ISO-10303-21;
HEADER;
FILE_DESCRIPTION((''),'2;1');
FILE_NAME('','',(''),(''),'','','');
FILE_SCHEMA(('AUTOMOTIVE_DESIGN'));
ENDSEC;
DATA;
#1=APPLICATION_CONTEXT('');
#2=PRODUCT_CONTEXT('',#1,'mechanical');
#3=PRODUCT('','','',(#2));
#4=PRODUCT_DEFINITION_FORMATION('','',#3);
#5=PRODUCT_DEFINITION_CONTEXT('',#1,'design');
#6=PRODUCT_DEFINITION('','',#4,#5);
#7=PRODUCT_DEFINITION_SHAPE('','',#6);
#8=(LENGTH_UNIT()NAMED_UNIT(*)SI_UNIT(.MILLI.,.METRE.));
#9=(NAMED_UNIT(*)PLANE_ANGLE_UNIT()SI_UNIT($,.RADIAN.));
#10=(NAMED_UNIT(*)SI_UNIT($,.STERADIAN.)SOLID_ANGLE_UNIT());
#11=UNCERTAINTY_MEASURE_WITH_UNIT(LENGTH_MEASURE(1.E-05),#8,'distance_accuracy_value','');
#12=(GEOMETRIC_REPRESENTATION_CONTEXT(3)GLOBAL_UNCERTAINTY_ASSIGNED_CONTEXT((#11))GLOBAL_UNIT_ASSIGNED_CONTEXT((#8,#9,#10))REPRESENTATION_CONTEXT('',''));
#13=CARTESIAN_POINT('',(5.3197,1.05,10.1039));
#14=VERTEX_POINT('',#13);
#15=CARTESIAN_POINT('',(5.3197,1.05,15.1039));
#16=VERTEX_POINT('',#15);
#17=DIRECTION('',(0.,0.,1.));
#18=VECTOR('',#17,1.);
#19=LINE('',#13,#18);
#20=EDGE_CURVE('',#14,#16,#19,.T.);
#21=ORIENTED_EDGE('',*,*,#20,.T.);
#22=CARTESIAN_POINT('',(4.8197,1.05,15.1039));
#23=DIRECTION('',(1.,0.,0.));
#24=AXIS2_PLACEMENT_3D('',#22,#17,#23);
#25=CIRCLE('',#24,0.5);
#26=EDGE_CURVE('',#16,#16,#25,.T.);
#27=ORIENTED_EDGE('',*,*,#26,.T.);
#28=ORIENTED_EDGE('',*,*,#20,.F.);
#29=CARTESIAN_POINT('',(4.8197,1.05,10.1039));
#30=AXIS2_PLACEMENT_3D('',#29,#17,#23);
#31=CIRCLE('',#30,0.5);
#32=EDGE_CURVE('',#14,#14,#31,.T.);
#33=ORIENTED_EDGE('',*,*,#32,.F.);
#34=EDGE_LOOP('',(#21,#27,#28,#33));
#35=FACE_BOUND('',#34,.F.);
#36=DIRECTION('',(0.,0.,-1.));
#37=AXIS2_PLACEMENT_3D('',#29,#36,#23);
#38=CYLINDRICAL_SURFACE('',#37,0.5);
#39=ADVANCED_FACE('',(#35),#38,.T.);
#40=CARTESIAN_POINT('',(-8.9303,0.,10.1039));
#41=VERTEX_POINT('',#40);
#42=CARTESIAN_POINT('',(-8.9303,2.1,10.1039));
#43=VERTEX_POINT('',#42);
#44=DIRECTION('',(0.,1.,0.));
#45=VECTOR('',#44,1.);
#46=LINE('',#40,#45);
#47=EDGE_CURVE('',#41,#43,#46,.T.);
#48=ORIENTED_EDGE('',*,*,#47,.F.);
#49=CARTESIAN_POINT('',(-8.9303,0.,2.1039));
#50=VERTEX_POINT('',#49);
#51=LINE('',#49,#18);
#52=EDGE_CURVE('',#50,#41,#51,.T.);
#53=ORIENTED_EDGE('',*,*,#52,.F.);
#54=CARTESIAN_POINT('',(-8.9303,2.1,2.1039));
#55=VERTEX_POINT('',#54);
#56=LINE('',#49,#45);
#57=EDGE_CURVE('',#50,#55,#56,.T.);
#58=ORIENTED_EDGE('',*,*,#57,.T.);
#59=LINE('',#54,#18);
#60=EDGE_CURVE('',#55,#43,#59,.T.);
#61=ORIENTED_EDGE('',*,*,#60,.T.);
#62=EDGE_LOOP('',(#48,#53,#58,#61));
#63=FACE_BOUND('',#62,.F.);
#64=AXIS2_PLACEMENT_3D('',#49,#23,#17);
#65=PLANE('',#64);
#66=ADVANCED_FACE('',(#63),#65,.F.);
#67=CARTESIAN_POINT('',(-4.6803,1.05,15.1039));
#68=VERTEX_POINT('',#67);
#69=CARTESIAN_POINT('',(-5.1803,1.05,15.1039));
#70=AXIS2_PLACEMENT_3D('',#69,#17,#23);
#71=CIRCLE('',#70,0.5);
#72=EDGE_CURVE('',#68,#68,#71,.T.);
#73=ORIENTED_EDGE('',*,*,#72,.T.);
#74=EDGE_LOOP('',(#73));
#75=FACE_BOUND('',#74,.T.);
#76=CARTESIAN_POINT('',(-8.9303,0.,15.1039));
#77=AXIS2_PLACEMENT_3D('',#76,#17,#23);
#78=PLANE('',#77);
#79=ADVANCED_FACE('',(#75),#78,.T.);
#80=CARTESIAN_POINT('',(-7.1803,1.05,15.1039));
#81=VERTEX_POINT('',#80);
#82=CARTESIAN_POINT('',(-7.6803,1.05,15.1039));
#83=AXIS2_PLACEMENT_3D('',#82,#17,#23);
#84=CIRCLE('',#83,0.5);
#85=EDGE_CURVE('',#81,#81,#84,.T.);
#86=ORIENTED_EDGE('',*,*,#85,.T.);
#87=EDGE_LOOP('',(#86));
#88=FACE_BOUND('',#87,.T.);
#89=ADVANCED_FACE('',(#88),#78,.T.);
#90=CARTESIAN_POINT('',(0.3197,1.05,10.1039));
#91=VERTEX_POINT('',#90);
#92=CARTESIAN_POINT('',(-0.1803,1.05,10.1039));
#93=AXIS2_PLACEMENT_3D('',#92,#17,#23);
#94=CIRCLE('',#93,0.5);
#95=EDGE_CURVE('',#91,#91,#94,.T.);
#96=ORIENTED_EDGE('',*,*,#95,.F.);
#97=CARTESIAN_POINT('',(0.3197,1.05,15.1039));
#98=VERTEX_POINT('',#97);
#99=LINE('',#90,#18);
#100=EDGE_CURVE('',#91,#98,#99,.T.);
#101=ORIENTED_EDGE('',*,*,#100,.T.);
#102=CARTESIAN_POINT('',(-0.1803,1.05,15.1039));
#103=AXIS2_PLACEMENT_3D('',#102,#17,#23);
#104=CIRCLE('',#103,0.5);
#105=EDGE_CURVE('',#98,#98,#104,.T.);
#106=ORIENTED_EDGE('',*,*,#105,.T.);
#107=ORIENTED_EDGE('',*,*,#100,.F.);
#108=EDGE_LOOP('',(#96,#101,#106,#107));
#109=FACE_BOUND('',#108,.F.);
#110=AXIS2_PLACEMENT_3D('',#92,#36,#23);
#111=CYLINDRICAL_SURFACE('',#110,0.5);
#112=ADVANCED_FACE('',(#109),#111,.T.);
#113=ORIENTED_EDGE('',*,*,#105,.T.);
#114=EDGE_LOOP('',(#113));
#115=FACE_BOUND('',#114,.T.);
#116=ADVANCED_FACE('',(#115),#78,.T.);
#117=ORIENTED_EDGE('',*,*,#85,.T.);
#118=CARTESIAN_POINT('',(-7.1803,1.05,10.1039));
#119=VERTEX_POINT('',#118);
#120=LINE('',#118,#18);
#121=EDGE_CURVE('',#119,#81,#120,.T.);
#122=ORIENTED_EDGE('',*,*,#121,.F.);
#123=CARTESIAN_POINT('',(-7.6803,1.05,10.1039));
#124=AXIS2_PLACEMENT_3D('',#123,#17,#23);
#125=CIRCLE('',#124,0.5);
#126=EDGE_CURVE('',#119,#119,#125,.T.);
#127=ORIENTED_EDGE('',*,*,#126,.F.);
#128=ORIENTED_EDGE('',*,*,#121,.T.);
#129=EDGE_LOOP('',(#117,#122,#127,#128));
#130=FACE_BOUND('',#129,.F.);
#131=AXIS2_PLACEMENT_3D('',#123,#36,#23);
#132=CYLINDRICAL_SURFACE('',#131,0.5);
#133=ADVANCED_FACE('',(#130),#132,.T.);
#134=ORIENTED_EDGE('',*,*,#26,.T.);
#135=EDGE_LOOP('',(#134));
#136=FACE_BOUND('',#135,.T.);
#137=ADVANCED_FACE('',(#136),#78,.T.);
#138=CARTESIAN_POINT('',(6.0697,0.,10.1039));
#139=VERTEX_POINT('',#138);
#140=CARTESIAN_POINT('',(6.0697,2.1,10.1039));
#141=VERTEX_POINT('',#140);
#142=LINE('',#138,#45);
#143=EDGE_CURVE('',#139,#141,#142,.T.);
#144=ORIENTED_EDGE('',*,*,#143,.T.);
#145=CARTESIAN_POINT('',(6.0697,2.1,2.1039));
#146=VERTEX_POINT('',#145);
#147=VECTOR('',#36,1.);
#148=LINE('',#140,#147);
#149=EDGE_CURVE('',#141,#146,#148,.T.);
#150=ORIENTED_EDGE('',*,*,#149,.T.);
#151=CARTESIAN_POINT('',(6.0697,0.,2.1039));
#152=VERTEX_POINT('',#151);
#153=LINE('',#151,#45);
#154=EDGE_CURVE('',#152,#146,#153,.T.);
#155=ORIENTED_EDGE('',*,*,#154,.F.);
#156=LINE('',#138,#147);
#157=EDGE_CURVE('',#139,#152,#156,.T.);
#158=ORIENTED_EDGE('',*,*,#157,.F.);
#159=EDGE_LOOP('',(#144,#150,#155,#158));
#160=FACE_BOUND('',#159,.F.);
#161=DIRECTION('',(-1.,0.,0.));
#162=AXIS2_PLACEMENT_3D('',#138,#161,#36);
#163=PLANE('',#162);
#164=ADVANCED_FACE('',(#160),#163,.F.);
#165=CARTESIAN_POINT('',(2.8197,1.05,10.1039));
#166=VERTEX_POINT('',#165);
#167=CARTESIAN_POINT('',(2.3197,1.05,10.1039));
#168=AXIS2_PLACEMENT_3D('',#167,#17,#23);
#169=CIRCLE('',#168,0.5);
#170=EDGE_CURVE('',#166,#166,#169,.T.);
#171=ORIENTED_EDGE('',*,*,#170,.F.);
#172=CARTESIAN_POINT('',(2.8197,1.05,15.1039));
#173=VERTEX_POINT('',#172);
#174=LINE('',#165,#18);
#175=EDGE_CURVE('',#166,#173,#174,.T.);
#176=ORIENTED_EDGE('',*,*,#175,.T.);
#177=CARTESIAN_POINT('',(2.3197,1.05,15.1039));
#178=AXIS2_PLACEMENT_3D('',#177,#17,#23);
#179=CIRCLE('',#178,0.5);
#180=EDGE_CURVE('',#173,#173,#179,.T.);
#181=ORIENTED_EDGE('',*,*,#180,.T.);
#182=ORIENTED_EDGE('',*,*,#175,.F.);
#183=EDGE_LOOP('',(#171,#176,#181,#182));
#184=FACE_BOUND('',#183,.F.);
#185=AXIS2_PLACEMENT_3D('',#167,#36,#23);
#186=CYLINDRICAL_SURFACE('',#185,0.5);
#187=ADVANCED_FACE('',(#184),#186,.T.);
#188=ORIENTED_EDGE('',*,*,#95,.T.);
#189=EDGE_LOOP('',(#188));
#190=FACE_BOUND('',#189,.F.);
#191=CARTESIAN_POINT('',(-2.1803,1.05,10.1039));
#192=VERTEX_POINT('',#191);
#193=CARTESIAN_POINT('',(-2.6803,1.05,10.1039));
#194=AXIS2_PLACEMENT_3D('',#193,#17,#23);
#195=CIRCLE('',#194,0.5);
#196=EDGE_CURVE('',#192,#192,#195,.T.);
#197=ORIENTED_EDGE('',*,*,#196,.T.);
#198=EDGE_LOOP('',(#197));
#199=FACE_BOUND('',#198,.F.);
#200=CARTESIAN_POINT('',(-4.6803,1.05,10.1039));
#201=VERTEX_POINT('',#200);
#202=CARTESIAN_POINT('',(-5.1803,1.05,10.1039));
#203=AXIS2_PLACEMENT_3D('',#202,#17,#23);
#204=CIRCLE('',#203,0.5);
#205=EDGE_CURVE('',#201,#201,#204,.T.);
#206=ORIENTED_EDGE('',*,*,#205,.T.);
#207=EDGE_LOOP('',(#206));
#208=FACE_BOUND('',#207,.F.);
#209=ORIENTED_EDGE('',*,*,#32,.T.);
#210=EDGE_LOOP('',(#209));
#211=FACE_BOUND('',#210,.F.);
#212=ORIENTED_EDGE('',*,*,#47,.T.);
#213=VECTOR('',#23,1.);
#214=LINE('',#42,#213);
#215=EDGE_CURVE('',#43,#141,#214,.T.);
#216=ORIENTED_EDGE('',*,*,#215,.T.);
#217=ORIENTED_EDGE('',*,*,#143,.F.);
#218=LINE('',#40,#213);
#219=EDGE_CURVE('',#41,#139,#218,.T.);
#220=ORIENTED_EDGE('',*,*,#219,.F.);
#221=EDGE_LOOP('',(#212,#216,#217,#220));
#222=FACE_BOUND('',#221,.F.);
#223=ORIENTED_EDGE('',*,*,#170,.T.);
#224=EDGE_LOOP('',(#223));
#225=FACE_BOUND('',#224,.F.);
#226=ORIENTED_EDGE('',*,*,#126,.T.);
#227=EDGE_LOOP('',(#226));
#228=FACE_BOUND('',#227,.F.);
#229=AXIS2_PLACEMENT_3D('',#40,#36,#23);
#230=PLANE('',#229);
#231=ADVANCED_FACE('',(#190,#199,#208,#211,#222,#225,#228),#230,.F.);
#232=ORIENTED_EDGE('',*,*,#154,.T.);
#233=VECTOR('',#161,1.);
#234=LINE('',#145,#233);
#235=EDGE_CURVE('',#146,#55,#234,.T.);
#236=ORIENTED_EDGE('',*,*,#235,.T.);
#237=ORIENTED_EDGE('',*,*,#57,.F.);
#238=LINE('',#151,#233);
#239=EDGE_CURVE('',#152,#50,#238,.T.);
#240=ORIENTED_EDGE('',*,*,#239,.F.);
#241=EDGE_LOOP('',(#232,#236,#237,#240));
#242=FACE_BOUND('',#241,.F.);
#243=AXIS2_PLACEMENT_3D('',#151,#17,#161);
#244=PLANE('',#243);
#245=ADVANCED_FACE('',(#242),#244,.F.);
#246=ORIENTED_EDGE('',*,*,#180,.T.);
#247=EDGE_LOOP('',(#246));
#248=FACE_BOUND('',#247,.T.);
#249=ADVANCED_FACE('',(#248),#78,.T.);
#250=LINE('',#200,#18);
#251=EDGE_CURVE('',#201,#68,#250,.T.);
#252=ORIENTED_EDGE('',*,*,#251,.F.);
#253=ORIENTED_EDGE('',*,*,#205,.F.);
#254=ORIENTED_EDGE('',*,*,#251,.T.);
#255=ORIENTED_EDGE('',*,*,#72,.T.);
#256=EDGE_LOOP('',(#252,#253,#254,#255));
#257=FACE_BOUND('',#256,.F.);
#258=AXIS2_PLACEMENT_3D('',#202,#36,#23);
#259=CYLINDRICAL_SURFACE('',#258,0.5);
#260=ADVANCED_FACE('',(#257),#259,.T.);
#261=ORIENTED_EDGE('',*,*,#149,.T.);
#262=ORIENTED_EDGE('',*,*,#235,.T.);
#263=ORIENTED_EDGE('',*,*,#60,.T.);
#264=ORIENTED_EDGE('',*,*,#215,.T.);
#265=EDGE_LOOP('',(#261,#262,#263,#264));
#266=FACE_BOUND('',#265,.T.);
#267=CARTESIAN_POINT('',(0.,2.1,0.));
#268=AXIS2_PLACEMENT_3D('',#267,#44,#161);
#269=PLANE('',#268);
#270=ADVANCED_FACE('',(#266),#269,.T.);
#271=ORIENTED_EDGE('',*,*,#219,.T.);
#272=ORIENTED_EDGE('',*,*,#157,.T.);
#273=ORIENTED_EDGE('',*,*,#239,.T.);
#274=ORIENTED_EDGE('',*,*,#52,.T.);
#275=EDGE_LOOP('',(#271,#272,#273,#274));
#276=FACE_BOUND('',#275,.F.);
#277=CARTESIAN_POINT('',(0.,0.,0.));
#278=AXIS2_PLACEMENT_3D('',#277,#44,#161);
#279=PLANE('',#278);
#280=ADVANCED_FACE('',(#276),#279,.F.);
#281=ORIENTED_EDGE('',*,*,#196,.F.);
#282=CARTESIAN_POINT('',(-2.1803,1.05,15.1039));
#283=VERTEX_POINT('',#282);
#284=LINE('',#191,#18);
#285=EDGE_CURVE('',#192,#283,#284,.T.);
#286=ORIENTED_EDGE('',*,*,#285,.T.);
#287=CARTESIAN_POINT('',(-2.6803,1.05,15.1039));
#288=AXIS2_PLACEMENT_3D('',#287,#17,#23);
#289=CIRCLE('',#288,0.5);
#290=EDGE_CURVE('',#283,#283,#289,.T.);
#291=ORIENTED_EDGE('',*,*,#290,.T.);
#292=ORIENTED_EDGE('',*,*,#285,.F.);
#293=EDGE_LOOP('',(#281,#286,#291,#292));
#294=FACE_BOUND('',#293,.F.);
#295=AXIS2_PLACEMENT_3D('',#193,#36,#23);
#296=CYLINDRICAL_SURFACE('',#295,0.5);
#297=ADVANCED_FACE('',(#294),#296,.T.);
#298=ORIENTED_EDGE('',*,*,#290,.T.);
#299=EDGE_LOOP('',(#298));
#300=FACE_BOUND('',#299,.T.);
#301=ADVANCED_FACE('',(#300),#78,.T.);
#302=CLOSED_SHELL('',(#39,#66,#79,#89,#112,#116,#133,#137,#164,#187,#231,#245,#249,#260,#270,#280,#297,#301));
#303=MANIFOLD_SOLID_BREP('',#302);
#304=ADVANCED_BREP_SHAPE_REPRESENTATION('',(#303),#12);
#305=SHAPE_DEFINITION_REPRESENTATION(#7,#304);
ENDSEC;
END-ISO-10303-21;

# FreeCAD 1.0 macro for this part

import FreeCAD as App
import Part
import Sketcher
from FreeCAD import Vector


def add_polygon(sketch, points):
    """Adds a closed chain of lines whose ends are joined by coincident constraints."""
    first, n = sketch.GeometryCount, len(points)
    for a, b in zip(points, points[1:] + points[:1]):
        sketch.addGeometry(Part.LineSegment(App.Vector(*a, 0), App.Vector(*b, 0)), False)
    for i in range(n):
        sketch.addConstraint(Sketcher.Constraint("Coincident", first + i, 2, first + (i + 1) % n, 1))

doc = App.newDocument("Part")
body = doc.addObject("PartDesign::Body", "Body")

# Sketch on XZ plane
sketch1 = doc.addObject("Sketcher::SketchObject", "Sketch")
body.addObject(sketch1)
sketch1.AttachmentSupport = (doc.XZ_Plane, [""])
sketch1.MapMode = "FlatFace"
add_polygon(sketch1, [(-9, 2), (-9, 10), (6, 10), (6, 2)])  # lines 0-3
sketch1.addConstraint([
    Sketcher.Constraint("Vertical", 0),
    Sketcher.Constraint("Horizontal", 1),
    Sketcher.Constraint("Vertical", 2),
    Sketcher.Constraint("Horizontal", 3),
    Sketcher.Constraint("DistanceX", 1, 1, 1, 2, 15.0),
    Sketcher.Constraint("DistanceY", 0, 1, 0, 2, 8.0),
    Sketcher.Constraint("DistanceY", -1, 1, 0, 2, 10.104),
    Sketcher.Constraint("DistanceX", 0, 2, -1, 1, 8.9303),
])
pad1 = doc.addObject("PartDesign::Pad", "Pad")
body.addObject(pad1)
pad1.Profile = sketch1
pad1.Length = 2.1
pad1.Reversed = True

# Sketch on XY plane
sketch2 = doc.addObject("Sketcher::SketchObject", "Sketch001")
body.addObject(sketch2)
sketch2.AttachmentSupport = (doc.XY_Plane, [""])
sketch2.MapMode = "FlatFace"
sketch2.AttachmentOffset = App.Placement(Vector(0, 0, 10.1039), App.Rotation())
sketch2.addGeometry([
    Part.Circle(Vector(-7.7, 1.1, 0), Vector(0, 0, 1), 0.5),  # 0
    Part.Circle(Vector(-5.2, 1.1, 0), Vector(0, 0, 1), 0.5),  # 1
    Part.Circle(Vector(-2.7, 1.1, 0), Vector(0, 0, 1), 0.5),  # 2
    Part.Circle(Vector(-0.2, 1.1, 0), Vector(0, 0, 1), 0.5),  # 3
    Part.Circle(Vector(2.3, 1.1, 0), Vector(0, 0, 1), 0.5),  # 4
    Part.Circle(Vector(4.8, 1.1, 0), Vector(0, 0, 1), 0.5),  # 5
], False)
sketch2.addConstraint([
    Sketcher.Constraint("Equal", 0, 1),
    Sketcher.Constraint("Equal", 1, 2),
    Sketcher.Constraint("Equal", 2, 3),
    Sketcher.Constraint("Equal", 3, 4),
    Sketcher.Constraint("Equal", 4, 5),
    Sketcher.Constraint("Horizontal", 0, 3, 1, 3),
    Sketcher.Constraint("Horizontal", 1, 3, 2, 3),
    Sketcher.Constraint("Horizontal", 2, 3, 3, 3),
    Sketcher.Constraint("Horizontal", 3, 3, 4, 3),
    Sketcher.Constraint("Horizontal", 4, 3, 5, 3),
    Sketcher.Constraint("Diameter", 0, 1.0),
    Sketcher.Constraint("DistanceX", 0, 3, 1, 3, 2.5),
    Sketcher.Constraint("DistanceX", 1, 3, 2, 3, 2.5),
    Sketcher.Constraint("DistanceX", 2, 3, 3, 3, 2.5),
    Sketcher.Constraint("DistanceX", 3, 3, 4, 3, 2.5),
    Sketcher.Constraint("DistanceX", 4, 3, 5, 3, 2.5),
    Sketcher.Constraint("DistanceY", -1, 1, 0, 3, 1.05),
    Sketcher.Constraint("DistanceX", 0, 3, -1, 1, 7.6803),
])
pad2 = doc.addObject("PartDesign::Pad", "Pad001")
body.addObject(pad2)
pad2.Profile = sketch2
pad2.Length = 5

doc.recompute()
